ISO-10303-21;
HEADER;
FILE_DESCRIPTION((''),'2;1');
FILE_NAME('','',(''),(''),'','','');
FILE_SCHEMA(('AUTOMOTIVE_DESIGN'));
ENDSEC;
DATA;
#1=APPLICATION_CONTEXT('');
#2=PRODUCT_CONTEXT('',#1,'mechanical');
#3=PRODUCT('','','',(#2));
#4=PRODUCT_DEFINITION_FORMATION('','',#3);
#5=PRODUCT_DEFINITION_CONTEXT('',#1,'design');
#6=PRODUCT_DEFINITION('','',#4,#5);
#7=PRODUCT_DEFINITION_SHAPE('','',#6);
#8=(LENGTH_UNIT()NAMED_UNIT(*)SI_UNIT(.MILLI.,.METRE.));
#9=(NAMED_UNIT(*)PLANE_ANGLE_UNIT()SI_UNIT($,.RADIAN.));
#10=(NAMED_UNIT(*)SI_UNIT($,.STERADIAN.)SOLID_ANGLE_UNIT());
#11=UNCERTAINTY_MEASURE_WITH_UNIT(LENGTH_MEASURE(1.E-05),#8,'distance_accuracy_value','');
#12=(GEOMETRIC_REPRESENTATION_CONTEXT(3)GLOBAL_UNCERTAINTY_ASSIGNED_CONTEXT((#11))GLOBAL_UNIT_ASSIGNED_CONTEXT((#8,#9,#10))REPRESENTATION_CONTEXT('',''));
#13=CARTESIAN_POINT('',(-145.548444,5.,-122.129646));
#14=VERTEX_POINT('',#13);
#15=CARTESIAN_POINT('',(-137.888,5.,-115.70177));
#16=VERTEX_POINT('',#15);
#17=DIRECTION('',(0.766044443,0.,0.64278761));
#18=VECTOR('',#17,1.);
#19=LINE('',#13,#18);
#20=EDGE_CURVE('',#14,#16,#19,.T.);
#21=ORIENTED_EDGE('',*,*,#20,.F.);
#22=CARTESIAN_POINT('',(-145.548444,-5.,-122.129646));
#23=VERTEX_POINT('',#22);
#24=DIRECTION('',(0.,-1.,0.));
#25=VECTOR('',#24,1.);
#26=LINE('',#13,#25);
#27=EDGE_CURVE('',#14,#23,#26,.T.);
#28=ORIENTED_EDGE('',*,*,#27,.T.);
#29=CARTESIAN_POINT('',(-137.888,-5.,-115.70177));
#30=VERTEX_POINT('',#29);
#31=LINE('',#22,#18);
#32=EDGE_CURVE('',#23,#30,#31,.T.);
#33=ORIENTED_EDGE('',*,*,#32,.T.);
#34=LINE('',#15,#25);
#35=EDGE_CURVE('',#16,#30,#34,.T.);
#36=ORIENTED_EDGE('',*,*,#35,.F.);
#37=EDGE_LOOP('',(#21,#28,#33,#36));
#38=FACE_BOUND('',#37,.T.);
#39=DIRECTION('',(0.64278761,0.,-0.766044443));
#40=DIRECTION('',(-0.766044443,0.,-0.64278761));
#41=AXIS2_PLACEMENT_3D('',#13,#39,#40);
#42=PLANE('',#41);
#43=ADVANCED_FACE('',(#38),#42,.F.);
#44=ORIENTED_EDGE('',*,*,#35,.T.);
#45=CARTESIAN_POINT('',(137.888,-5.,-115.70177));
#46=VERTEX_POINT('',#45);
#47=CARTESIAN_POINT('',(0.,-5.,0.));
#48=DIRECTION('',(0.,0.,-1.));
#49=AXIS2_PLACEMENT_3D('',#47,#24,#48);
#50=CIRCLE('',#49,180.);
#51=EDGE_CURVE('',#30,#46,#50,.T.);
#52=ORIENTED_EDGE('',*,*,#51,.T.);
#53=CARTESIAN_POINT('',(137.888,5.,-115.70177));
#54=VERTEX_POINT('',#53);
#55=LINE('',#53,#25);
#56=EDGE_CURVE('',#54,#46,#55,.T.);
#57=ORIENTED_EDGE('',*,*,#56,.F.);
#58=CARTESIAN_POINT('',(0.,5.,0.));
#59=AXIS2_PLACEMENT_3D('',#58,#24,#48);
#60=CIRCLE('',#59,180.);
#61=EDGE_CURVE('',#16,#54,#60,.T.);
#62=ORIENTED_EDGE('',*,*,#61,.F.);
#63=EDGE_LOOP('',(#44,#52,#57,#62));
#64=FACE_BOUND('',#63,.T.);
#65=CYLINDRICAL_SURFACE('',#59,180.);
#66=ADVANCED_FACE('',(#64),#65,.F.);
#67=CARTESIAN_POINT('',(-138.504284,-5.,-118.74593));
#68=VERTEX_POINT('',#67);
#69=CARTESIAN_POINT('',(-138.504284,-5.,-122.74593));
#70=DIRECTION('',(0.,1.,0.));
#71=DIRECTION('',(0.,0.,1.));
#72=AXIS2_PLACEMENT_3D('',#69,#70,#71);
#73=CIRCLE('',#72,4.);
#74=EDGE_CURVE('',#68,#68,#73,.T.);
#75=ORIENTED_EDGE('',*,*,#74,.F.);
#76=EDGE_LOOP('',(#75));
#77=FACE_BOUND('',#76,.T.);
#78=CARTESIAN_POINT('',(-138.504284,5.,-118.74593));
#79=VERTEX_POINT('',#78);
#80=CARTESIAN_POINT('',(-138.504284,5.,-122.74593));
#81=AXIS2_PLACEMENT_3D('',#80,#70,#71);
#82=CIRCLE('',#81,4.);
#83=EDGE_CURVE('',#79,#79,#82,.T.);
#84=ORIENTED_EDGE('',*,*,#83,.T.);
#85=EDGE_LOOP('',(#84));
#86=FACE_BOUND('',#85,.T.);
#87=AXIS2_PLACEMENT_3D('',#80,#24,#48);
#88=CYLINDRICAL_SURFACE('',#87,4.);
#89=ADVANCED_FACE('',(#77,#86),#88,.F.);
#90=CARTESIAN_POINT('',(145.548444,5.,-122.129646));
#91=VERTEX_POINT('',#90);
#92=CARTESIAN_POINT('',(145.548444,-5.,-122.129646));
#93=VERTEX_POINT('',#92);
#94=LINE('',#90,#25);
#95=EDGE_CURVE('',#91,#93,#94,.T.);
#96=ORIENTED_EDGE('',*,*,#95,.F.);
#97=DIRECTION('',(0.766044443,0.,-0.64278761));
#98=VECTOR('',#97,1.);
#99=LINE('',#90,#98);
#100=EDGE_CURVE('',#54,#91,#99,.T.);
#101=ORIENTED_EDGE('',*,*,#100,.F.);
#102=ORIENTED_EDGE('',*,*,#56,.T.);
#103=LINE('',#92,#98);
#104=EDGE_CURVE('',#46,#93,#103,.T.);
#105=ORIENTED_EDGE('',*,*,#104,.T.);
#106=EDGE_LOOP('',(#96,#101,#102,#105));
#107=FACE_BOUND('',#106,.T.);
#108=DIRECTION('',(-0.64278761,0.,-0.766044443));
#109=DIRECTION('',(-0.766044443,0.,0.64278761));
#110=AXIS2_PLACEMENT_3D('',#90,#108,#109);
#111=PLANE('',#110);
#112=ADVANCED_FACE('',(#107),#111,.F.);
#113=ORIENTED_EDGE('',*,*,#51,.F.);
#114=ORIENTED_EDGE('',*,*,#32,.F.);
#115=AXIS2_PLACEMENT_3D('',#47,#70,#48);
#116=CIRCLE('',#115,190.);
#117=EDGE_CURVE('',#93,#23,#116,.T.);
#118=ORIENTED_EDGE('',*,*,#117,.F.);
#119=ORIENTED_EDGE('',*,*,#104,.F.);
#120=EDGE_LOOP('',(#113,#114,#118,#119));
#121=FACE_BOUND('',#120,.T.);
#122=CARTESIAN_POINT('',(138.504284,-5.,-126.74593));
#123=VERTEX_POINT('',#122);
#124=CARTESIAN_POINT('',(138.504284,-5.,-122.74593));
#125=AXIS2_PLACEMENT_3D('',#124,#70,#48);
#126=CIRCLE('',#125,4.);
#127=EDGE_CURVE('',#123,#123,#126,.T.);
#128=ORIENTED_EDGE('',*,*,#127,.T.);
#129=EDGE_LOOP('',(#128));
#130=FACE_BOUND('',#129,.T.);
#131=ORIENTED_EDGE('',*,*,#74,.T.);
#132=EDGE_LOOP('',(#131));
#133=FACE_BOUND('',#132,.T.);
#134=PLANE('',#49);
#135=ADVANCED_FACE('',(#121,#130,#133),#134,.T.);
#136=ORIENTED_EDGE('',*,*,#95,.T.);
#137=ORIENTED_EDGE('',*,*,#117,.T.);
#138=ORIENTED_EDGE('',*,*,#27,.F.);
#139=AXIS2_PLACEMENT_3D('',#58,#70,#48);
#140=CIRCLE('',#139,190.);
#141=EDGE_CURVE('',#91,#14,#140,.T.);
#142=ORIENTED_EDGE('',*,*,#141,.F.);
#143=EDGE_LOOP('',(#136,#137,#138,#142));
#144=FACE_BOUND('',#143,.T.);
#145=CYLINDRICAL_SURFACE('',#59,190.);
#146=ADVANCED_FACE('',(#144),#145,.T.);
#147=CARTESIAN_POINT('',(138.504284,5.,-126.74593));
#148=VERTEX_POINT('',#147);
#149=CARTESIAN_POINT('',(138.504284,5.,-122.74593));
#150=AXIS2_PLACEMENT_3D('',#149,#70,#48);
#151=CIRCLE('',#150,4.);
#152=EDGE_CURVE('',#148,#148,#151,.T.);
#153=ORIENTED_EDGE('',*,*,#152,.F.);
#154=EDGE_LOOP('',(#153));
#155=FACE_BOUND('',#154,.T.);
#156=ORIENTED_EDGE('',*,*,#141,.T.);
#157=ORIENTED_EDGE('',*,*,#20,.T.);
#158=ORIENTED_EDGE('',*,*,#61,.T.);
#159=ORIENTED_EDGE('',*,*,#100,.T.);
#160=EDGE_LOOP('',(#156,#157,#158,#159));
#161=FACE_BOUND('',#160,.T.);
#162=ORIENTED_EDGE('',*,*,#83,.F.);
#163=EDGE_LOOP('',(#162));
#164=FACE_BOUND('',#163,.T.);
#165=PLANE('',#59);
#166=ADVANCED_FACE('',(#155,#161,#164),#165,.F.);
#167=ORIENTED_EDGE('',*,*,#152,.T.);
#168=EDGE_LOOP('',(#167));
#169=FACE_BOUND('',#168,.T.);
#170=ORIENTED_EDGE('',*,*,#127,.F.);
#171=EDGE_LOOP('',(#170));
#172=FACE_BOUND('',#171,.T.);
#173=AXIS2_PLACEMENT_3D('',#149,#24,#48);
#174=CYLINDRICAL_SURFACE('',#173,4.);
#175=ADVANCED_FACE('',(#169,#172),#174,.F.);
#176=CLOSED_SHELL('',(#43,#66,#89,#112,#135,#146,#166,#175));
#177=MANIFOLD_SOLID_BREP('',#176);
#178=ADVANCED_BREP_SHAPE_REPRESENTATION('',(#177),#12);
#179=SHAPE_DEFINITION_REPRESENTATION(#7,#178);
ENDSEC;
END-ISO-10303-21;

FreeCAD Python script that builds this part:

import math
import FreeCAD as App
import Part
import Sketcher
from FreeCAD import Vector
Q = App.Units.Quantity

doc = App.newDocument("Part")
body = doc.addObject("PartDesign::Body", "Body")

sketch1 = body.newObject("Sketcher::SketchObject", "Sketch")
sketch1.AttachmentSupport = (doc.getObject("XZ_Plane"), [""])
sketch1.MapMode = "FlatFace"
sketch1.addGeometry([
    Part.LineSegment(Vector(-145.5, -122.1, 0), Vector(-137.9, -115.7, 0)),
    Part.ArcOfCircle(Part.Circle(Vector(0, 0, 0), Vector(0, 0, 1), 180), math.radians(-140), math.radians(-40)),
    Part.LineSegment(Vector(137.9, -115.7, 0), Vector(145.5, -122.1, 0)),
    Part.ArcOfCircle(Part.Circle(Vector(0, 0, 0), Vector(0, 0, 1), 190), math.radians(-140), math.radians(-40)),
    Part.Circle(Vector(-138.5, -122.7, 0), Vector(0, 0, 1), 4),
    Part.Circle(Vector(138.5, -122.7, 0), Vector(0, 0, 1), 4),
], False)
sketch1.addConstraint([
    Sketcher.Constraint("Coincident", 0, 2, 1, 1),
    Sketcher.Constraint("Coincident", 1, 2, 2, 1),
    Sketcher.Constraint("Coincident", 2, 2, 3, 2),
    Sketcher.Constraint("Coincident", 3, 1, 0, 1),
    Sketcher.Constraint("Coincident", 1, 3, -1, 1),
    Sketcher.Constraint("Coincident", 3, 3, -1, 1),
    Sketcher.Constraint("Equal", 4, 5),
    Sketcher.Constraint("Symmetric", 4, 3, 5, 3, -2),
    Sketcher.Constraint("Horizontal", 0, 2, 1, 2),
    Sketcher.Constraint("Horizontal", 2, 2, 3, 1),
    Sketcher.Constraint("Diameter", 4, Q("8 mm")),
    Sketcher.Constraint("Radius", 1, Q("180 mm")),
    Sketcher.Constraint("Radius", 3, Q("190 mm")),
    Sketcher.Constraint("Angle", 0, Q("40 deg")),
    Sketcher.Constraint("DistanceX", 0, 2, -1, 1, Q("137.888 mm")),
    Sketcher.Constraint("DistanceY", 4, 3, -1, 1, Q("122.74593 mm")),
    Sketcher.Constraint("DistanceX", 5, 3, 2, 2, Q("7.04416 mm")),
])
pad1 = body.newObject("PartDesign::Pad", "Pad")
pad1.Profile = sketch1
pad1.Length = 10
pad1.Midplane = True

doc.recompute()
